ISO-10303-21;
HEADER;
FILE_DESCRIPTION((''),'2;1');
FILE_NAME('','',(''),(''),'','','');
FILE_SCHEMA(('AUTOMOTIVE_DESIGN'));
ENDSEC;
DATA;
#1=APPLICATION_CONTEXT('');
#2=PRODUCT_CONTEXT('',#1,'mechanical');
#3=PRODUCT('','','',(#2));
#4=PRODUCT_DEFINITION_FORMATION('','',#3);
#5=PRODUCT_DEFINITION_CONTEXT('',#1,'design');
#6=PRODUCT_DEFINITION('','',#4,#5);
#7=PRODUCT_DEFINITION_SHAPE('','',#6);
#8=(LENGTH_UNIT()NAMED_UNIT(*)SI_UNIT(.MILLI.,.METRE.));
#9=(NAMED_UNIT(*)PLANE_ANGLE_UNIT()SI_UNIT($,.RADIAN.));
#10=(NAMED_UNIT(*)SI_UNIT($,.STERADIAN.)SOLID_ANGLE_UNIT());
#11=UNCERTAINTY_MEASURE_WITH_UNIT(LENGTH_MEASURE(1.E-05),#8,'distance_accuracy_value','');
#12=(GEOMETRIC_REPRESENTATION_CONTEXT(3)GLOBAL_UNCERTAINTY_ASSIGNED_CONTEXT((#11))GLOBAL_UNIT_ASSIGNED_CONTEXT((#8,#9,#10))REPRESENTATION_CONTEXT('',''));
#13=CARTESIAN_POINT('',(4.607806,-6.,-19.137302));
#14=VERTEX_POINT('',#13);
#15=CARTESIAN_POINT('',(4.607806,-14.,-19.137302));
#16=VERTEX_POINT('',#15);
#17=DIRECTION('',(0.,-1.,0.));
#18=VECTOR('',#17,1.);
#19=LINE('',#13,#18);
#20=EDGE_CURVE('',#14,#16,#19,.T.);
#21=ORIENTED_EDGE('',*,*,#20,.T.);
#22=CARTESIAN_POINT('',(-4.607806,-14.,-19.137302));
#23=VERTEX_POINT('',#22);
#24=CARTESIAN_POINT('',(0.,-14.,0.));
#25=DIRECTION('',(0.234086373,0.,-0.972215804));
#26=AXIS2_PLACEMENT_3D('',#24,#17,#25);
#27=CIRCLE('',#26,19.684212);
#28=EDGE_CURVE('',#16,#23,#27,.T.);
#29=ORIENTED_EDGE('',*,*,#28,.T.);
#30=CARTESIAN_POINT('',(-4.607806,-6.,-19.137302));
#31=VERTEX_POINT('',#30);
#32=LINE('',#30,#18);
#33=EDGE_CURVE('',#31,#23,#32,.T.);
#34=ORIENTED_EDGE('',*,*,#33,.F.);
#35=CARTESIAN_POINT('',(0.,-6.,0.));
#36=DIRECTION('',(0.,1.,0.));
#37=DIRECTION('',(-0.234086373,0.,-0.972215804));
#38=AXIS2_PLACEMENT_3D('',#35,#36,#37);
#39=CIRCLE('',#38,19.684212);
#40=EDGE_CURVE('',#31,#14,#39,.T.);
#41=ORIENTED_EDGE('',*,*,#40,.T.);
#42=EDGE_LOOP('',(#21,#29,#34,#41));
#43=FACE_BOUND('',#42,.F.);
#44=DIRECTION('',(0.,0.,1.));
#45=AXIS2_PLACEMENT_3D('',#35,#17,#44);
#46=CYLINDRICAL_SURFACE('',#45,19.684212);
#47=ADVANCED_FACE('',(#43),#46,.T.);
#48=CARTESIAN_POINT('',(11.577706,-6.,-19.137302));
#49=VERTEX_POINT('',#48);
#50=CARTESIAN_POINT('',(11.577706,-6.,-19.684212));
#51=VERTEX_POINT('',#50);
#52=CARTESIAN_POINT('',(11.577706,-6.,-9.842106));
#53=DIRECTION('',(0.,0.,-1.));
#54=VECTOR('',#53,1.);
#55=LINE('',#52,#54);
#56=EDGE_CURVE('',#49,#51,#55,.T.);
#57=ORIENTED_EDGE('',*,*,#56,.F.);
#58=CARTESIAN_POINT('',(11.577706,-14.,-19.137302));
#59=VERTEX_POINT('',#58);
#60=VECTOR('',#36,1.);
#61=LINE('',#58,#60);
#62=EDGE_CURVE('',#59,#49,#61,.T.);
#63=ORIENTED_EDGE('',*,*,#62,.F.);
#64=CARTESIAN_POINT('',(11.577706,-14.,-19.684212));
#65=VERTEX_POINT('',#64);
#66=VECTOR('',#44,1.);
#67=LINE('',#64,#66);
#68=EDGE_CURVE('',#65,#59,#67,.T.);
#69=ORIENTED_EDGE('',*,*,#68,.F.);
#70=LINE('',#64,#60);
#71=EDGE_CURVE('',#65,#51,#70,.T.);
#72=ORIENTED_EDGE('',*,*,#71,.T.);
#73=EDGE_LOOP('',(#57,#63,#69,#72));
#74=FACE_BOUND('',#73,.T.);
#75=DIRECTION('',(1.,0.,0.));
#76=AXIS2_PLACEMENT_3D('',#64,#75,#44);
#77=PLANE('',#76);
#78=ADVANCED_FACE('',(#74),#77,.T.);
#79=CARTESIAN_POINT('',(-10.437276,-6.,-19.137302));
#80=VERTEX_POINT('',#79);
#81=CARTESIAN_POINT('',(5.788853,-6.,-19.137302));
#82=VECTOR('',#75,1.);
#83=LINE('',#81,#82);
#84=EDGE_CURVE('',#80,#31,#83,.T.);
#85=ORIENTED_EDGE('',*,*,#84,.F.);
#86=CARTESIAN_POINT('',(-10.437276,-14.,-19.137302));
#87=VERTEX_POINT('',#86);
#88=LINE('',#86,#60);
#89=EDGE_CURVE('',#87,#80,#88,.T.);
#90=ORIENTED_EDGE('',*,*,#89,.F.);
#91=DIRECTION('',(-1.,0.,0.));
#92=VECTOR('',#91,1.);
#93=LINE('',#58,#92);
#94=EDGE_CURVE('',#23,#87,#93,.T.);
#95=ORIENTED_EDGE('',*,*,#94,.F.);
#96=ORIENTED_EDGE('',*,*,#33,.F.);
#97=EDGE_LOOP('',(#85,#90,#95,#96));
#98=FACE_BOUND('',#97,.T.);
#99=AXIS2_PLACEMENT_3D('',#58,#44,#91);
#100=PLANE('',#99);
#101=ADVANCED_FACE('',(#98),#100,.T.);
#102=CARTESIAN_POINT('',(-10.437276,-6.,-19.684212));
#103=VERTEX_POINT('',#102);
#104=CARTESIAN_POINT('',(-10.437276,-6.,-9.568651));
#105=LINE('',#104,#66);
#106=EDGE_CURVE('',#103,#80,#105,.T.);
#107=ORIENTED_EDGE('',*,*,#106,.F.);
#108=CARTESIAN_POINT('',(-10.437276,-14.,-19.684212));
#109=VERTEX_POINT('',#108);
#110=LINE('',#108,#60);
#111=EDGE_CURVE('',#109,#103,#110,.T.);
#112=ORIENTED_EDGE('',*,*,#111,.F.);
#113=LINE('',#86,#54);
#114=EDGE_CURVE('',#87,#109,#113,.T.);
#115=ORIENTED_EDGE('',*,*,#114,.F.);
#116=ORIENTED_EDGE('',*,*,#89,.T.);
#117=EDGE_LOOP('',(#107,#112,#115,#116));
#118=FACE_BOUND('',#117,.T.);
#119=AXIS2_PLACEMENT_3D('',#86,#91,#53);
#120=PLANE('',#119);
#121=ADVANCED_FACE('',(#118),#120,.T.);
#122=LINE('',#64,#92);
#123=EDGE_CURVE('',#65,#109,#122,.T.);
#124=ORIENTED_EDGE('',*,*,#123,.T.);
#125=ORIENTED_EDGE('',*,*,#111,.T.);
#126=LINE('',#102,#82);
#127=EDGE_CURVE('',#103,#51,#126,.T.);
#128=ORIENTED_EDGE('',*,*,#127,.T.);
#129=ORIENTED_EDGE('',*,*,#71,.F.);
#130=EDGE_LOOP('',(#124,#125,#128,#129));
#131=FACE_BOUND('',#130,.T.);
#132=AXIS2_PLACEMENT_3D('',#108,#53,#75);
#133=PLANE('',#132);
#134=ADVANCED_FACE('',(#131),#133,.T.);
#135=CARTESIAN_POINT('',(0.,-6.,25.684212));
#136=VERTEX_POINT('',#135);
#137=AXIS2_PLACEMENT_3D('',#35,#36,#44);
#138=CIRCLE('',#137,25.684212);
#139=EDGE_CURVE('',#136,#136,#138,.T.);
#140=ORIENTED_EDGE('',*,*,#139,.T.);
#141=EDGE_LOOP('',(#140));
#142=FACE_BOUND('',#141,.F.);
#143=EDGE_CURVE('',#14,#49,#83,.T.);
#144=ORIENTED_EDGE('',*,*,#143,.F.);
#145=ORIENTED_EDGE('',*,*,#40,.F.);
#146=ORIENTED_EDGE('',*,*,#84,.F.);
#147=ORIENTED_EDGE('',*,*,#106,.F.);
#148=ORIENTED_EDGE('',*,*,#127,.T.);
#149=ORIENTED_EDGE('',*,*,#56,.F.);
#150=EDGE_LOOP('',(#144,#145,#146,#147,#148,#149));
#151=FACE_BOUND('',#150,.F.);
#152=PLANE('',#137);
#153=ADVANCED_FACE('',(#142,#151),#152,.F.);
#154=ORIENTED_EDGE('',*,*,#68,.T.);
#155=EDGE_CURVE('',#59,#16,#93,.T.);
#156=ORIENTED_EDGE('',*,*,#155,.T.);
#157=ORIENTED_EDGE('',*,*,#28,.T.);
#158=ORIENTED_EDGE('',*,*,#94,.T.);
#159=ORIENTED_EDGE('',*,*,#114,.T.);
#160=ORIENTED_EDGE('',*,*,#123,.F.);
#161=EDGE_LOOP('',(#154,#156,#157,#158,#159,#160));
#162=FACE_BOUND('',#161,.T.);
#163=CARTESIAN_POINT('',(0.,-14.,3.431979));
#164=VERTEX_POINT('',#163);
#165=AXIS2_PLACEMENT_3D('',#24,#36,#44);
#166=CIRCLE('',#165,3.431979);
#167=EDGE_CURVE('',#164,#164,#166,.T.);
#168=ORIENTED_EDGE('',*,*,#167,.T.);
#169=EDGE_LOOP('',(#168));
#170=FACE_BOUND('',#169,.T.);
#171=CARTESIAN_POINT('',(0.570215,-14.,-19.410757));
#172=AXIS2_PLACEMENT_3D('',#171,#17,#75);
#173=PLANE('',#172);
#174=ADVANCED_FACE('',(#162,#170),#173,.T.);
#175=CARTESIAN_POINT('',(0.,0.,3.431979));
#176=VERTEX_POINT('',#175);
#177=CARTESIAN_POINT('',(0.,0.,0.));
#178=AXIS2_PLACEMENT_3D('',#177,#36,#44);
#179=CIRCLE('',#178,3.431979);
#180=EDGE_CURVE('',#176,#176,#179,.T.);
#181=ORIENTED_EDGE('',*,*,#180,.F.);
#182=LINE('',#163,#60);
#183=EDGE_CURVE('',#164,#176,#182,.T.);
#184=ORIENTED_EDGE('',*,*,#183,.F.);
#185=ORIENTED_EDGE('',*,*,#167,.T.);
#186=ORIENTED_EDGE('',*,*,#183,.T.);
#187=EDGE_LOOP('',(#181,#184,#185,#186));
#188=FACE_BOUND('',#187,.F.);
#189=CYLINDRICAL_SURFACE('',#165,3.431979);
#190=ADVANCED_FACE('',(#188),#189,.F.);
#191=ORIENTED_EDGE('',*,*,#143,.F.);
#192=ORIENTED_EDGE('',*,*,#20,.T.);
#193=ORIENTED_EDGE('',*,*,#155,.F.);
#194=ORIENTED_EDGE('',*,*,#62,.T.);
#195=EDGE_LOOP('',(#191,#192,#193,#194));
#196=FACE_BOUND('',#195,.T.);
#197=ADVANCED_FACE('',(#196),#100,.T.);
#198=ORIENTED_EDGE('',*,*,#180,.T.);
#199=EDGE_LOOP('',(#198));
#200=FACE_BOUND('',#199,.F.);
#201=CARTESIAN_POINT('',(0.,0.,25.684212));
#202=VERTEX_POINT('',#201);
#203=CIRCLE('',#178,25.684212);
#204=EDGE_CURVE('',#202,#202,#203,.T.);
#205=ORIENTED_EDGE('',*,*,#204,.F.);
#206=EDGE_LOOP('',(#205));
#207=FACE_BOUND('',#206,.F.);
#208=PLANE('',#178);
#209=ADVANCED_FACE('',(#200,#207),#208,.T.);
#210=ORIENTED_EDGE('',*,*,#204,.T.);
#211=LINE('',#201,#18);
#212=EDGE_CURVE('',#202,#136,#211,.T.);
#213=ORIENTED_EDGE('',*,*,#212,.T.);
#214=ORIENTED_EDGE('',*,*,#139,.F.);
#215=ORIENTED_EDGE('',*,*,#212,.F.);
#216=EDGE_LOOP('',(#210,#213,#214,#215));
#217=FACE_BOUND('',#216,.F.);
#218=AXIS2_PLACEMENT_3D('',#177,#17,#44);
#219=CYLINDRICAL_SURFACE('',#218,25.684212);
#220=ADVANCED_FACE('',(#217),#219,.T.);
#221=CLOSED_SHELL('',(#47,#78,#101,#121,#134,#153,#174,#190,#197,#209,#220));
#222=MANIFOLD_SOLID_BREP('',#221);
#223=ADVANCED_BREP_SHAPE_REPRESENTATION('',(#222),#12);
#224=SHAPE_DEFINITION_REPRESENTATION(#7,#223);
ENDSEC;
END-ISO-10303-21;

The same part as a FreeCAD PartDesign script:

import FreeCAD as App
import Part
import Sketcher
from FreeCAD import Vector

doc = App.newDocument("Part")
body = doc.addObject("PartDesign::Body", "Body")

# Sketch on YZ plane
sketch1 = body.newObject("Sketcher::SketchObject", "Sketch")
sketch1.AttachmentSupport = (doc.getObject("YZ_Plane"), [""])
sketch1.MapMode = "FlatFace"
sketch1.addGeometry([
    Part.LineSegment(Vector(-14, 3.431979, 0), Vector(0, 3.431979, 0)),  # 0
    Part.LineSegment(Vector(0, 3.431979, 0), Vector(0, 25.684212, 0)),  # 1
    Part.LineSegment(Vector(0, 25.684212, 0), Vector(-6, 25.684212, 0)),  # 2
    Part.LineSegment(Vector(-6, 25.684212, 0), Vector(-6, 19.684212, 0)),  # 3
    Part.LineSegment(Vector(-6, 19.684212, 0), Vector(-14, 19.684212, 0)),  # 4
    Part.LineSegment(Vector(-14, 19.684212, 0), Vector(-14, 3.431979, 0)),  # 5
], False)
sketch1.addConstraint([
    Sketcher.Constraint("Coincident", 0, 2, 1, 1),
    Sketcher.Constraint("Coincident", 1, 2, 2, 1),
    Sketcher.Constraint("Coincident", 2, 2, 3, 1),
    Sketcher.Constraint("Coincident", 3, 2, 4, 1),
    Sketcher.Constraint("Coincident", 4, 2, 5, 1),
    Sketcher.Constraint("Coincident", 5, 2, 0, 1),
    Sketcher.Constraint("Horizontal", 0),
    Sketcher.Constraint("Vertical", 1),
    Sketcher.Constraint("Horizontal", 2),
    Sketcher.Constraint("Vertical", 3),
    Sketcher.Constraint("Horizontal", 4),
    Sketcher.Constraint("Vertical", 5),
    Sketcher.Constraint("PointOnObject", 0, 2, -2),
    Sketcher.Constraint("Equal", 2, 3),
    Sketcher.Constraint("DistanceX", 0, 1, 0, 2, 14.0),
    Sketcher.Constraint("DistanceX", 2, 2, 2, 1, 6.0),
    Sketcher.Constraint("DistanceY", 1, 1, 1, 2, 22.252233),
    Sketcher.Constraint("DistanceY", -1, 1, 0, 2, 3.431979),
])
revolution = body.newObject("PartDesign::Revolution", "Revolution")
revolution.Profile = sketch1
revolution.ReferenceAxis = (sketch1, ["H_Axis"])
revolution.Angle = 360

# Sketch on XZ plane
sketch2 = body.newObject("Sketcher::SketchObject", "Sketch001")
sketch2.AttachmentSupport = (doc.getObject("XZ_Plane"), [""])
sketch2.MapMode = "FlatFace"
sketch2.AttachmentOffset = App.Placement(Vector(0, 0, 14), App.Rotation())
sketch2.addGeometry([
    Part.LineSegment(Vector(-10.437276, -19.684212, 0), Vector(11.577706, -19.684212, 0)),
    Part.LineSegment(Vector(11.577706, -19.684212, 0), Vector(11.577706, -19.137302, 0)),
    Part.LineSegment(Vector(11.577706, -19.137302, 0), Vector(-10.437276, -19.137302, 0)),
    Part.LineSegment(Vector(-10.437276, -19.137302, 0), Vector(-10.437276, -19.684212, 0)),
], False)
sketch2.addConstraint([
    Sketcher.Constraint("Coincident", 0, 2, 1, 1),
    Sketcher.Constraint("Coincident", 1, 2, 2, 1),
    Sketcher.Constraint("Coincident", 2, 2, 3, 1),
    Sketcher.Constraint("Coincident", 3, 2, 0, 1),
    Sketcher.Constraint("Horizontal", 0),
    Sketcher.Constraint("Vertical", 1),
    Sketcher.Constraint("Horizontal", 2),
    Sketcher.Constraint("Vertical", 3),
    Sketcher.Constraint("DistanceX", 0, 1, 0, 2, 22.014982),
    Sketcher.Constraint("DistanceY", 1, 1, 1, 2, 0.54691),
    Sketcher.Constraint("DistanceY", 1, 2, -1, 1, 19.137302),
    Sketcher.Constraint("DistanceX", -1, 1, 0, 2, 11.577706),
])
pad1 = body.newObject("PartDesign::Pad", "Pad")
pad1.Profile = sketch2
pad1.Length = 10
pad1.Reversed = True

doc.recompute()
